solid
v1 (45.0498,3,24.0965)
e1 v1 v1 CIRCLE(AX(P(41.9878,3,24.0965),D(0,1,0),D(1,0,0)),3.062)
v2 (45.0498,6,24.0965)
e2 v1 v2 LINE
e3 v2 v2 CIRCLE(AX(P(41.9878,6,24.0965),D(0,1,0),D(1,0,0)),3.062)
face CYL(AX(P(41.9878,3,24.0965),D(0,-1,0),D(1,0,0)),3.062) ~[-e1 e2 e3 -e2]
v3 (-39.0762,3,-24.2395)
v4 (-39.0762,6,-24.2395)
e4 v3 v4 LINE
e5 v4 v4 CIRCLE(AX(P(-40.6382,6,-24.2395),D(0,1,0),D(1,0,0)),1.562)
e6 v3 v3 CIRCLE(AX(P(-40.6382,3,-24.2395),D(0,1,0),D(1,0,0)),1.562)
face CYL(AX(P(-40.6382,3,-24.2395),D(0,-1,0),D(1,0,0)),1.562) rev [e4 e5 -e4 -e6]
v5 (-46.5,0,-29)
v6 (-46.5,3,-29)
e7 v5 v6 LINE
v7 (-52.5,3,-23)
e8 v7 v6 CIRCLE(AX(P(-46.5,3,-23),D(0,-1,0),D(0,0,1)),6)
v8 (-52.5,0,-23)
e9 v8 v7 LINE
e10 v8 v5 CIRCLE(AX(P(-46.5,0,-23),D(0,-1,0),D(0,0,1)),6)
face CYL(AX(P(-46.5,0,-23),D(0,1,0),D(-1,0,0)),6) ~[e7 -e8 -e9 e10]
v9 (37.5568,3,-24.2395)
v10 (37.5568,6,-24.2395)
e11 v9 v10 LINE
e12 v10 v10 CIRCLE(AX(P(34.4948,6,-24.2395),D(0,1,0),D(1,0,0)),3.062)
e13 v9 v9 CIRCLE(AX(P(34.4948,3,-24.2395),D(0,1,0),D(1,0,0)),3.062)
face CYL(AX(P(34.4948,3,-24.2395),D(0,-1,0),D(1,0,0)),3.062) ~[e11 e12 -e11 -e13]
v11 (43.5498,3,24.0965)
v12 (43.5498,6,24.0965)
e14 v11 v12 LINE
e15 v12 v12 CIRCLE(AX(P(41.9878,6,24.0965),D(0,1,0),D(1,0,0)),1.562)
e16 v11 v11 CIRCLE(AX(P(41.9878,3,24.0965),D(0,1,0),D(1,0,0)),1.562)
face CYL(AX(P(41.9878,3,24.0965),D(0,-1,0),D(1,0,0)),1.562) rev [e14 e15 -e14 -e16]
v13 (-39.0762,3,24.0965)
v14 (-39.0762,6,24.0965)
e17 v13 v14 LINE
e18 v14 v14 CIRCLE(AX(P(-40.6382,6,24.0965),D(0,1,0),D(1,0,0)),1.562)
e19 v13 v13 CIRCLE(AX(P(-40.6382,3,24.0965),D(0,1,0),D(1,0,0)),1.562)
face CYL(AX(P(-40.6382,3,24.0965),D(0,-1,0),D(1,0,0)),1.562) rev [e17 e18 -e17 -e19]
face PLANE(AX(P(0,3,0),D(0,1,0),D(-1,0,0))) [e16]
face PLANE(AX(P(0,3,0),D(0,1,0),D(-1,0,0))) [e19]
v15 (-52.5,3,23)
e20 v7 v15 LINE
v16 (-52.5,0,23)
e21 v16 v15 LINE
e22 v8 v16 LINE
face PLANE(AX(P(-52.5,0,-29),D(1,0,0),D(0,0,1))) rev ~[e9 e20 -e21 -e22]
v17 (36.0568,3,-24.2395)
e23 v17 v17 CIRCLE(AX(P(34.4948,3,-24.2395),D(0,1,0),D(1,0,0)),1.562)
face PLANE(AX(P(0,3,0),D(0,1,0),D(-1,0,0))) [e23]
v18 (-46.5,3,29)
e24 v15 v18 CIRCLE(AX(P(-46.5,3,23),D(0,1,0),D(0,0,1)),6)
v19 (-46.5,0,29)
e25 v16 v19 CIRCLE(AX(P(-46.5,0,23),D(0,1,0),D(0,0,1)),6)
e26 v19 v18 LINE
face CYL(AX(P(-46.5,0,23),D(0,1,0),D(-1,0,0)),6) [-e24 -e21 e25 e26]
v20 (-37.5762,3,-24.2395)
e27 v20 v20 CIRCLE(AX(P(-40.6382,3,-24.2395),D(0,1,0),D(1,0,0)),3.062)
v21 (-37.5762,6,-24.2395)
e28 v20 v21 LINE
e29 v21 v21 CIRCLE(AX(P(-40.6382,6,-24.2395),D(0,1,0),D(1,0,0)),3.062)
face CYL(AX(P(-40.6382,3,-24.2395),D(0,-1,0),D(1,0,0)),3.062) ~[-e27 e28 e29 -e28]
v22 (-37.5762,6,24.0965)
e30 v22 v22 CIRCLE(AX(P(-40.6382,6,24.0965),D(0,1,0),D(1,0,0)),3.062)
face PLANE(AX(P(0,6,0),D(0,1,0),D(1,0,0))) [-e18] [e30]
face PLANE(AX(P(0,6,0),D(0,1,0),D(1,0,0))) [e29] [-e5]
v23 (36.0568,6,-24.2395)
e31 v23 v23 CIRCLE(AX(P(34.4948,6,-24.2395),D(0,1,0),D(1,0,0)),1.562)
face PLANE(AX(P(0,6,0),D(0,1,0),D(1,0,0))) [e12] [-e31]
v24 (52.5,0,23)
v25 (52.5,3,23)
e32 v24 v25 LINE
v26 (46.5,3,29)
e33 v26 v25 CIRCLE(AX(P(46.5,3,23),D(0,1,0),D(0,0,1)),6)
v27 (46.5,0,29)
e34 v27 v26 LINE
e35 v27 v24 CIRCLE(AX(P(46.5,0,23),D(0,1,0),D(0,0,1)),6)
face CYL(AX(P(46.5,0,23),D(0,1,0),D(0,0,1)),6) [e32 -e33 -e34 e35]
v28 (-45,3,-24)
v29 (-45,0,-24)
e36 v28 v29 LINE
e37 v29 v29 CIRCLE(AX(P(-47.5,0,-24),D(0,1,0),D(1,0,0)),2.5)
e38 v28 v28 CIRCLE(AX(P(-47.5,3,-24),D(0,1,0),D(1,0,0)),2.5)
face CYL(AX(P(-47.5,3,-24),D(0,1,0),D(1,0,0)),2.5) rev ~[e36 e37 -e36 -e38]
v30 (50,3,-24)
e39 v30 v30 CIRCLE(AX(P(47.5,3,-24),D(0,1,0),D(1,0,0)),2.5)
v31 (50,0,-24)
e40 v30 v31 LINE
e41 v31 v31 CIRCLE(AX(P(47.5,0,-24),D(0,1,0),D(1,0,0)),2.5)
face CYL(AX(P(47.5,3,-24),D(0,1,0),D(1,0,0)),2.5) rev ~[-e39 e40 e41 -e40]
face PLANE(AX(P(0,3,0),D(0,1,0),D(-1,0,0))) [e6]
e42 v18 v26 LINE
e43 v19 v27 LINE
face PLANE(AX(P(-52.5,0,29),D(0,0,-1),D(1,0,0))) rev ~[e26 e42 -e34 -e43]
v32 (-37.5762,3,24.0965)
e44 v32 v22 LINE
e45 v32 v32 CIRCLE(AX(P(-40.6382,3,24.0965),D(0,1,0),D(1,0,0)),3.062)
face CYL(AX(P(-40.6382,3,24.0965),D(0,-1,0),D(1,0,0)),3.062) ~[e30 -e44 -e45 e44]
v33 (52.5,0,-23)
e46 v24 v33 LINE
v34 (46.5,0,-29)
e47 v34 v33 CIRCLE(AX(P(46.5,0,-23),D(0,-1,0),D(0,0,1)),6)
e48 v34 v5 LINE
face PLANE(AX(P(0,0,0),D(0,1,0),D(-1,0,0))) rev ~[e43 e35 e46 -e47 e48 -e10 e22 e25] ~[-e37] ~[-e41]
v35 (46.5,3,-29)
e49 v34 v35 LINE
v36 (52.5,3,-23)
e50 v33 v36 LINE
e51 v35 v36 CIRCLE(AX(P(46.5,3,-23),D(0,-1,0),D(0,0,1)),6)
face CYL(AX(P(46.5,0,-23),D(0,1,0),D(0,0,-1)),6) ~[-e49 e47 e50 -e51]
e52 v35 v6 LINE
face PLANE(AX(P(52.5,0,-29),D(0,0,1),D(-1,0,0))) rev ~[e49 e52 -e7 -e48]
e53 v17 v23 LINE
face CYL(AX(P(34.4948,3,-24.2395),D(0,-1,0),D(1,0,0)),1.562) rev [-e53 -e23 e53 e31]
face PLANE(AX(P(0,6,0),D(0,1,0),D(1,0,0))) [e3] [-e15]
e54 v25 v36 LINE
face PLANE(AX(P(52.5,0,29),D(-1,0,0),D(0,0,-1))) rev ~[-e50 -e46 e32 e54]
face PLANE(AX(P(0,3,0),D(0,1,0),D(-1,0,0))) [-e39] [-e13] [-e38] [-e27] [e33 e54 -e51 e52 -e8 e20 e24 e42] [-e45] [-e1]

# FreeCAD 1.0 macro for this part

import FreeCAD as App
import Part
import Sketcher

V = App.Vector


def edges_at(feature, points):
    """Names of the edges that pass closest to the given points."""
    edges = feature.Shape.Edges
    near = lambda p: min(range(len(edges)), key=lambda i: edges[i].distToShape(Part.Vertex(*p))[0])
    return sorted({f"Edge{near(p) + 1}" for p in points})

doc = App.newDocument("Part")
body = doc.addObject("PartDesign::Body", "Body")

# Sketch on XZ plane
sketch1 = body.newObject("Sketcher::SketchObject", "Sketch")
sketch1.AttachmentSupport = (doc.getObject("XZ_Plane"), [""])
sketch1.MapMode = "FlatFace"
sketch1.addGeometry([
    Part.LineSegment(V(-52.5, -29, 0), V(-52.5, 29, 0)),
    Part.LineSegment(V(-52.5, 29, 0), V(52.5, 29, 0)),
    Part.LineSegment(V(52.5, 29, 0), V(52.5, -29, 0)),
    Part.LineSegment(V(52.5, -29, 0), V(-52.5, -29, 0)),
], False)
sketch1.addConstraint([
    Sketcher.Constraint("Coincident", 0, 2, 1, 1),
    Sketcher.Constraint("Coincident", 1, 2, 2, 1),
    Sketcher.Constraint("Coincident", 2, 2, 3, 1),
    Sketcher.Constraint("Coincident", 3, 2, 0, 1),
    Sketcher.Constraint("Vertical", 0),
    Sketcher.Constraint("Horizontal", 1),
    Sketcher.Constraint("Vertical", 2),
    Sketcher.Constraint("Horizontal", 3),
    Sketcher.Constraint("Symmetric", 0, 2, 2, 2, -1, 1),
    Sketcher.Constraint("DistanceX", 1, 1, 1, 2, 105.0),
    Sketcher.Constraint("DistanceY", 0, 1, 0, 2, 58.0),
])
pad1 = body.newObject("PartDesign::Pad", "Pad")
pad1.Profile = sketch1
pad1.Length = 3
pad1.Reversed = True

# Sketch on XZ plane
sketch2 = body.newObject("Sketcher::SketchObject", "Sketch001")
sketch2.AttachmentSupport = (doc.getObject("XZ_Plane"), [""])
sketch2.MapMode = "FlatFace"
sketch2.AttachmentOffset = App.Placement(V(0, 0, -3), App.Rotation())
sketch2.addGeometry([
    Part.Circle(V(41.9878, 24.0965, 0), V(0, 0, 1), 3.062),  # 0
    Part.Circle(V(41.9878, 24.0965, 0), V(0, 0, 1), 1.562),  # 1
    Part.Circle(V(-40.6382, 24.0965, 0), V(0, 0, 1), 3.062),  # 2
    Part.Circle(V(-40.6382, 24.0965, 0), V(0, 0, 1), 1.562),  # 3
    Part.Circle(V(-40.6382, -24.2395, 0), V(0, 0, 1), 3.062),  # 4
    Part.Circle(V(-40.6382, -24.2395, 0), V(0, 0, 1), 1.562),  # 5
    Part.Circle(V(34.4948, -24.2395, 0), V(0, 0, 1), 3.062),  # 6
    Part.Circle(V(34.4948, -24.2395, 0), V(0, 0, 1), 1.562),  # 7
], False)
sketch2.addConstraint([
    Sketcher.Constraint("Coincident", 1, 3, 0, 3),
    Sketcher.Constraint("Coincident", 3, 3, 2, 3),
    Sketcher.Constraint("Coincident", 5, 3, 4, 3),
    Sketcher.Constraint("Coincident", 7, 3, 6, 3),
    Sketcher.Constraint("Equal", 0, 2),
    Sketcher.Constraint("Equal", 1, 3),
    Sketcher.Constraint("Equal", 2, 4),
    Sketcher.Constraint("Equal", 3, 5),
    Sketcher.Constraint("Equal", 4, 6),
    Sketcher.Constraint("Equal", 5, 7),
    Sketcher.Constraint("Horizontal", 1, 3, 2, 3),
    Sketcher.Constraint("Horizontal", 5, 3, 6, 3),
    Sketcher.Constraint("Vertical", 3, 3, 4, 3),
    Sketcher.Constraint("Diameter", 1, 3.124),
    Sketcher.Constraint("Diameter", 0, 6.124),
    Sketcher.Constraint("DistanceX", 2, 3, 0, 3, 82.626),
    Sketcher.Constraint("DistanceY", 4, 3, 2, 3, 48.336),
    Sketcher.Constraint("DistanceX", 4, 3, 6, 3, 75.133),
    Sketcher.Constraint("DistanceX", -1, 1, 0, 3, 41.9878),
    Sketcher.Constraint("DistanceY", -1, 1, 0, 3, 24.0965),
])
pad2 = body.newObject("PartDesign::Pad", "Pad001")
pad2.Profile = sketch2
pad2.Length = 3
pad2.Reversed = True

# Sketch on XZ plane
sketch3 = body.newObject("Sketcher::SketchObject", "Sketch002")
sketch3.AttachmentSupport = (doc.getObject("XZ_Plane"), [""])
sketch3.MapMode = "FlatFace"
sketch3.AttachmentOffset = App.Placement(V(0, 0, -3), App.Rotation())
sketch3.addGeometry([
    Part.Circle(V(47.5, -24, 0), V(0, 0, 1), 2.5),
    Part.Circle(V(-47.5, -24, 0), V(0, 0, 1), 2.5),
], False)
sketch3.addConstraint([
    Sketcher.Constraint("Equal", 0, 1),
    Sketcher.Constraint("Symmetric", 0, 3, 1, 3, -2),
    Sketcher.Constraint("Diameter", 0, 5.0),
    Sketcher.Constraint("DistanceY", 0, 3, -1, 1, 24.0),
    Sketcher.Constraint("DistanceX", 1, 3, 0, 3, 95.0),
])
pocket1 = body.newObject("PartDesign::Pocket", "Pocket")
pocket1.Profile = sketch3
pocket1.Type = "ThroughAll"
pocket1.Reversed = True
doc.recompute()

fillet = body.newObject("PartDesign::Fillet", "Fillet")
fillet.Base = (pocket1, edges_at(pocket1, [
    (52.5, 1.5, 29),
    (52.5, 1.5, -29),
    (-52.5, 1.5, 29),
    (-52.5, 1.5, -29),
]))
fillet.Radius = 6

doc.recompute()
